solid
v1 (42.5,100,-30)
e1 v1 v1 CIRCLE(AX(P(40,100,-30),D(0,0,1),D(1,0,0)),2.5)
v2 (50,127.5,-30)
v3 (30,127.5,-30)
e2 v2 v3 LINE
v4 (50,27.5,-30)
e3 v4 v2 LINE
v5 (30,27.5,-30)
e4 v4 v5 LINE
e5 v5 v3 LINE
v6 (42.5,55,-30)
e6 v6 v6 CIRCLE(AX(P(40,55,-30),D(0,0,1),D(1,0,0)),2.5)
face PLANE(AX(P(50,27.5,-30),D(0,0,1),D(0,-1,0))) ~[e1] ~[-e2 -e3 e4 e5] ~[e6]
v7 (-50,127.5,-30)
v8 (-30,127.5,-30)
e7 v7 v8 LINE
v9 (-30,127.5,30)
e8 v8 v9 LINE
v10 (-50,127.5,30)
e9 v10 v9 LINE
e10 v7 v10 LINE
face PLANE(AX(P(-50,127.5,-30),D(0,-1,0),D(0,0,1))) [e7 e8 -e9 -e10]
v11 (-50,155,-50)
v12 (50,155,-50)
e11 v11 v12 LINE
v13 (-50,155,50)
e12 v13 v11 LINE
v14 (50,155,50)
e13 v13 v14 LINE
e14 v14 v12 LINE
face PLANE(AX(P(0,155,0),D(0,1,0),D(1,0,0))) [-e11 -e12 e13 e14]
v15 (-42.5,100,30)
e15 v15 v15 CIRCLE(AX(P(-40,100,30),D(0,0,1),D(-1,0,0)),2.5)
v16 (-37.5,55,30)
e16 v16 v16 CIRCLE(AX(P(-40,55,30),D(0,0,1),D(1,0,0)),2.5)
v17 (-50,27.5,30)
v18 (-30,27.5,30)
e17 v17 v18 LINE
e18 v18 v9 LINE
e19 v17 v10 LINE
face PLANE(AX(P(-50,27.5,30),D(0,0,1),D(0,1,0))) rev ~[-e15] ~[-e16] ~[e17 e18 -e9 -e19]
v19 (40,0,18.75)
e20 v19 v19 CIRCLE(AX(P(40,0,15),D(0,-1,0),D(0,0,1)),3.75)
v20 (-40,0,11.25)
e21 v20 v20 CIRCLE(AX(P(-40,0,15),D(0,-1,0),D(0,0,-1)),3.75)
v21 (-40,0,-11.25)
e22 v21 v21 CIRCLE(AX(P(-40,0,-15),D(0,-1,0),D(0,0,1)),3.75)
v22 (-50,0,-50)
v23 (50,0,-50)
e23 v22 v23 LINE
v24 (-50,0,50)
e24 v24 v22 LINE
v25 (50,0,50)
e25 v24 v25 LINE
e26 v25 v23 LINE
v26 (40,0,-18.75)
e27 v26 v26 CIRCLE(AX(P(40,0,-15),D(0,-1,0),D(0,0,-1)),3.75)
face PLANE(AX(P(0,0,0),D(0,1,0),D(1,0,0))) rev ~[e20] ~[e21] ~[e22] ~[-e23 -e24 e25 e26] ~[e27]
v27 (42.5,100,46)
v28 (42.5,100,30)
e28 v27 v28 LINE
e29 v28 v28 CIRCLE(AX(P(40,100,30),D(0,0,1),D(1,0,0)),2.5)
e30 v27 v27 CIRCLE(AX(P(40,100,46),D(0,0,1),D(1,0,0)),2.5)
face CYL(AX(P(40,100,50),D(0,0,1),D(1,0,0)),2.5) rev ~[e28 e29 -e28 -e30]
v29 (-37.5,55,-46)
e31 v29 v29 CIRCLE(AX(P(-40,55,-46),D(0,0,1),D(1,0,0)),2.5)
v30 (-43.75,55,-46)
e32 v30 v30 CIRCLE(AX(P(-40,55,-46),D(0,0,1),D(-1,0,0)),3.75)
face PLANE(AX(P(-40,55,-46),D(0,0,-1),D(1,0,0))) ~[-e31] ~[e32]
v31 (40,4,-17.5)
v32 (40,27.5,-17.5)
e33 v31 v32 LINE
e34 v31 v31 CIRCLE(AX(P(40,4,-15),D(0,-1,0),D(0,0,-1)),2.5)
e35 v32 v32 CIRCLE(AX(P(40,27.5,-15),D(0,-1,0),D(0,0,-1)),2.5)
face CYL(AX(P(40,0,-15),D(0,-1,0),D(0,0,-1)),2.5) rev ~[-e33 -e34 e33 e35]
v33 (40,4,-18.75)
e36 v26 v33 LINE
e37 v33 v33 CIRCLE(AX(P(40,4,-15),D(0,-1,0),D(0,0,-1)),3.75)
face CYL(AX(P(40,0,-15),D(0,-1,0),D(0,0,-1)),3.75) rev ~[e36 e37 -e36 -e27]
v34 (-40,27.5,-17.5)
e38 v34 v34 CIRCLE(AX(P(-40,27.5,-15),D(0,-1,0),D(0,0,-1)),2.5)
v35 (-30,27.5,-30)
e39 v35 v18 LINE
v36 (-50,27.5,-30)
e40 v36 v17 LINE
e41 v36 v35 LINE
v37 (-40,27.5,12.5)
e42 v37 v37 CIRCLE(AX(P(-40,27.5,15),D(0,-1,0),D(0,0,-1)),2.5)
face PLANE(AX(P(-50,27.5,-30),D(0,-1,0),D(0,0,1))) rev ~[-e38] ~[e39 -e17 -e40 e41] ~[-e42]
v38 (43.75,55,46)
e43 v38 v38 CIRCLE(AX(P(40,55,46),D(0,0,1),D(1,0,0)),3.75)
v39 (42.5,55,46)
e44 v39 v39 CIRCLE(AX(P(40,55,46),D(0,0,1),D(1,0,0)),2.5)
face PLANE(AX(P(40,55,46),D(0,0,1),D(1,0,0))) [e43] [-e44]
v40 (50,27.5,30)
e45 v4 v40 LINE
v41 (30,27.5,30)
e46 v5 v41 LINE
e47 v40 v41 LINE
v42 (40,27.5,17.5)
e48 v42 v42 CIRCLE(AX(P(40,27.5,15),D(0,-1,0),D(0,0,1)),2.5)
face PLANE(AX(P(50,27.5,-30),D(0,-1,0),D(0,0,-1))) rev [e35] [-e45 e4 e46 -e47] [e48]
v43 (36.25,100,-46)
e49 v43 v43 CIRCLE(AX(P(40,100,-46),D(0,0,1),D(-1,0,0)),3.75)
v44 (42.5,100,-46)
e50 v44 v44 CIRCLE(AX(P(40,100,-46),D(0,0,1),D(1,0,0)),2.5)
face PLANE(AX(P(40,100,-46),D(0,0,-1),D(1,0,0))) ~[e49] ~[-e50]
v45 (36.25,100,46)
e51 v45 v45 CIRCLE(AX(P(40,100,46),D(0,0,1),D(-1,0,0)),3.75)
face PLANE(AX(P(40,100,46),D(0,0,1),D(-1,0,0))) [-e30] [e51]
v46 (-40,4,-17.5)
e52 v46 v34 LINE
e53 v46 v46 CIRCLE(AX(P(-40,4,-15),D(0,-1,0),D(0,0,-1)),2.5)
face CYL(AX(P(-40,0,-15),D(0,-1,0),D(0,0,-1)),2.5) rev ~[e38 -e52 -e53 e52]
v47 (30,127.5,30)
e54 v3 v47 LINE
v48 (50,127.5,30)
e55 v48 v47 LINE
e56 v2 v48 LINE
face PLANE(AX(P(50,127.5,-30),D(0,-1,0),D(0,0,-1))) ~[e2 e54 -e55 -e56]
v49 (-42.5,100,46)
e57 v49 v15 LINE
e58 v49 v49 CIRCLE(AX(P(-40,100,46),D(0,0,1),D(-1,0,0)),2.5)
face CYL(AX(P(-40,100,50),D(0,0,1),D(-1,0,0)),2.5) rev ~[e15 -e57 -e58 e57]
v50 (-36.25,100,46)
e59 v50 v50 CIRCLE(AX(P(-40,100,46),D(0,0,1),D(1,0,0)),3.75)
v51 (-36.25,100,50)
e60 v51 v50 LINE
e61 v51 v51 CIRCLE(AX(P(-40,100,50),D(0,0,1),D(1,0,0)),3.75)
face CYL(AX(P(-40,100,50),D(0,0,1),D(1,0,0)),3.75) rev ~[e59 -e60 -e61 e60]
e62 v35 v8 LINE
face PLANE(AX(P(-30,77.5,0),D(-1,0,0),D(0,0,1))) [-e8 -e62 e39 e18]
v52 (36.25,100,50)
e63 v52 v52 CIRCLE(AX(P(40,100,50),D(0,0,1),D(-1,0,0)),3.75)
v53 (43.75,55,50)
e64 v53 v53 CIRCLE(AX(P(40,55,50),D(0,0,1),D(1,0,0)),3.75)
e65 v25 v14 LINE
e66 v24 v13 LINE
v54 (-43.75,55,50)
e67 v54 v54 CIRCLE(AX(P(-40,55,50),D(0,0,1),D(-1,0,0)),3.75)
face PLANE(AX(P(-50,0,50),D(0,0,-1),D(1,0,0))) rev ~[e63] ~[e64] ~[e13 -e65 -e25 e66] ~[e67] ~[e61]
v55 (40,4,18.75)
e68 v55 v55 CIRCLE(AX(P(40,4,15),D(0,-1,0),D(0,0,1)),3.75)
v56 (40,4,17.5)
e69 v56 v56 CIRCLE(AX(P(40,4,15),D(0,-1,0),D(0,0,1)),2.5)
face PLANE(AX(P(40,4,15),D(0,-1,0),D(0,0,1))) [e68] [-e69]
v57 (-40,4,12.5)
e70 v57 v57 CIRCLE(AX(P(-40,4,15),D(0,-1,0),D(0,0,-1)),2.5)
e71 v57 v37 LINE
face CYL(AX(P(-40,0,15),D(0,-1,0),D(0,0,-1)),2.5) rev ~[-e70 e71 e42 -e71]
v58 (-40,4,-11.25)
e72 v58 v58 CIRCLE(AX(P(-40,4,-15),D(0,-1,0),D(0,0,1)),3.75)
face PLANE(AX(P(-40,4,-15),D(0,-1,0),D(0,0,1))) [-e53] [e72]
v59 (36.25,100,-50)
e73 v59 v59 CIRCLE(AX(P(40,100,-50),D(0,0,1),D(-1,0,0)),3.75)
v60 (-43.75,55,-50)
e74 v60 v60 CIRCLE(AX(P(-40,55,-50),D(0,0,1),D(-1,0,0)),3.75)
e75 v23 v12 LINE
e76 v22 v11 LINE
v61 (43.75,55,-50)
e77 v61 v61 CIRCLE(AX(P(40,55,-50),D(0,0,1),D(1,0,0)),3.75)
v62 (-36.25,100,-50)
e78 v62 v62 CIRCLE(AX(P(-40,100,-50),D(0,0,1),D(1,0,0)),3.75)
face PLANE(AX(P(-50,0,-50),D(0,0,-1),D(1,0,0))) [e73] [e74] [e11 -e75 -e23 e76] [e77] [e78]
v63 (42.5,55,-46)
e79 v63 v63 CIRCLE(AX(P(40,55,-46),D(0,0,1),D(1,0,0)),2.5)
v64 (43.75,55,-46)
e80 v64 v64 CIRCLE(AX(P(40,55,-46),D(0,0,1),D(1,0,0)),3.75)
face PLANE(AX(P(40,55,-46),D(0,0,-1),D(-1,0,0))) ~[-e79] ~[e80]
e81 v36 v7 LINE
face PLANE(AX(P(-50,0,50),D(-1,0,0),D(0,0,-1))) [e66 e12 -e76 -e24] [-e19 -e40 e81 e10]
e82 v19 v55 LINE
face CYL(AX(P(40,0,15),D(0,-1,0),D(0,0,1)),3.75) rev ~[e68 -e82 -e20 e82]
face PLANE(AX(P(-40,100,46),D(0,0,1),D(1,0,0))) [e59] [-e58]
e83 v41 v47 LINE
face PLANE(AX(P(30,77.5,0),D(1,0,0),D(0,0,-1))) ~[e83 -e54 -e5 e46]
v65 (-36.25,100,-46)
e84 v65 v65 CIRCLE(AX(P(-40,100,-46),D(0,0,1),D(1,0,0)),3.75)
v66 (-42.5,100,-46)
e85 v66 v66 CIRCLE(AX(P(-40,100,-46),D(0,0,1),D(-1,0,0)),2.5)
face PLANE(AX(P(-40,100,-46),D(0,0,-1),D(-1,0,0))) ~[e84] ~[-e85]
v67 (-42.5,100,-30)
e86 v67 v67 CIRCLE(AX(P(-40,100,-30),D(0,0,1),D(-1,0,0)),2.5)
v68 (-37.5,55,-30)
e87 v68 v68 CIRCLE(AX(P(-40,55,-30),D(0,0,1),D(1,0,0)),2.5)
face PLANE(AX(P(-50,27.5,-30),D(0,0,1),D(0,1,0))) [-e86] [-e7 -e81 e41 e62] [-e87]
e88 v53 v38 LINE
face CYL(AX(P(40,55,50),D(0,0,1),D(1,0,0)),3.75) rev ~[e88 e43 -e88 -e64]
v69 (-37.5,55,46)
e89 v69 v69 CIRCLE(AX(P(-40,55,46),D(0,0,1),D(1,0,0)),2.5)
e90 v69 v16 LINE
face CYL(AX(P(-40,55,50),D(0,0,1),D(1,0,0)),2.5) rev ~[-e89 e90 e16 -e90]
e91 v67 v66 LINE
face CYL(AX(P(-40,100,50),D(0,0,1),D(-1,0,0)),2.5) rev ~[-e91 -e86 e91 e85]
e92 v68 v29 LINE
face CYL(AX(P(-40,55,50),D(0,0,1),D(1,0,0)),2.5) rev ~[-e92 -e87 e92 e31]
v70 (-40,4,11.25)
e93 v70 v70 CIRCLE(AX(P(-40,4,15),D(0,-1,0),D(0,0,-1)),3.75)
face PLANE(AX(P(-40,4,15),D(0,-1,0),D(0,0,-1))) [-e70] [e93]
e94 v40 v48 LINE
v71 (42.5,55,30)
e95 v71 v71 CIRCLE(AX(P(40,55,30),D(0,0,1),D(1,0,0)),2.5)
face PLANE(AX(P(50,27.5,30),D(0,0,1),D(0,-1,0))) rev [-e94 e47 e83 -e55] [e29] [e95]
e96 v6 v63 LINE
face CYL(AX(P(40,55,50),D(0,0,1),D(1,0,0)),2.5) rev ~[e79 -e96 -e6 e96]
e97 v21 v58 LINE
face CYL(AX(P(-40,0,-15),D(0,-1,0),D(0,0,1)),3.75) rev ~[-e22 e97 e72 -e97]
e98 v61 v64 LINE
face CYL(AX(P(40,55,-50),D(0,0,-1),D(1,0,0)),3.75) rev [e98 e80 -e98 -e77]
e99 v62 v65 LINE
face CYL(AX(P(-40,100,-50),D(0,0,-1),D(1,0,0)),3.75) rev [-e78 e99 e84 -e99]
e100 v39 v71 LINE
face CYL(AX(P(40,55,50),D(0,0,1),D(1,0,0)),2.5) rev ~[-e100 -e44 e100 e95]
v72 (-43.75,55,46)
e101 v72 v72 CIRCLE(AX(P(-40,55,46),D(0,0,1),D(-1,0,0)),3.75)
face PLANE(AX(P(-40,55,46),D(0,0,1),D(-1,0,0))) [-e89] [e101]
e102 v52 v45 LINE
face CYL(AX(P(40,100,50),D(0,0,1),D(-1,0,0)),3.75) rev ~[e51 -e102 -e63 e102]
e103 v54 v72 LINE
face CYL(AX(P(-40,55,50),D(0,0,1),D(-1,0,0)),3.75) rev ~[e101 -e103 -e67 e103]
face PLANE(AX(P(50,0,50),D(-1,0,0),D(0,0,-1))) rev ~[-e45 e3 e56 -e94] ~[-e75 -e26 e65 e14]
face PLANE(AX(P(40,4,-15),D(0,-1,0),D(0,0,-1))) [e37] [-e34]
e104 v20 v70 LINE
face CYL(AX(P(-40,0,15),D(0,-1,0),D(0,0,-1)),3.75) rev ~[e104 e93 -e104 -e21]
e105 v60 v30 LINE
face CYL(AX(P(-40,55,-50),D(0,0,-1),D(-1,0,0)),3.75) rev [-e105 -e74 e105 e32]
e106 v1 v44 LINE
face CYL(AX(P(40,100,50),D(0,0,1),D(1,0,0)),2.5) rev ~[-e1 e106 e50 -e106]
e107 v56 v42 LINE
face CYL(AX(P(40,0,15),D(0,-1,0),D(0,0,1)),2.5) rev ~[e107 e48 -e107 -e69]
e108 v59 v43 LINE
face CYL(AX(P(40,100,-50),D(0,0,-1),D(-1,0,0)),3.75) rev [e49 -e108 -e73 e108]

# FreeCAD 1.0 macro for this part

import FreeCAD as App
import Part
import Sketcher

V = App.Vector
Q = App.Units.Quantity


def add_polygon(sketch, points):
    """Adds a closed chain of lines whose ends are joined by coincident constraints."""
    first, n = sketch.GeometryCount, len(points)
    for a, b in zip(points, points[1:] + points[:1]):
        sketch.addGeometry(Part.LineSegment(App.Vector(*a, 0), App.Vector(*b, 0)), False)
    for i in range(n):
        sketch.addConstraint(Sketcher.Constraint("Coincident", first + i, 2, first + (i + 1) % n, 1))

doc = App.newDocument("Part")
body = doc.addObject("PartDesign::Body", "Body")

sketch1 = doc.addObject("Sketcher::SketchObject", "Sketch")
body.addObject(sketch1)
sketch1.AttachmentSupport = (doc.XZ_Plane, [""])
sketch1.MapMode = "FlatFace"
add_polygon(sketch1, [(-50, -50), (-50, 50), (50, 50), (50, -50)])
sketch1.addConstraint([
    Sketcher.Constraint("Vertical", 0),
    Sketcher.Constraint("Horizontal", 1),
    Sketcher.Constraint("Vertical", 2),
    Sketcher.Constraint("Horizontal", 3),
    Sketcher.Constraint("Symmetric", 0, 2, 2, 2, -1, 1),
    Sketcher.Constraint("Equal", 3, 0),
    Sketcher.Constraint("DistanceX", 1, 1, 1, 2, Q("100 mm")),
])
pad1 = doc.addObject("PartDesign::Pad", "Pad")
body.addObject(pad1)
pad1.Profile = sketch1
pad1.Length = 155
pad1.Reversed = True

sketch2 = doc.addObject("Sketcher::SketchObject", "Sketch001")
body.addObject(sketch2)
sketch2.AttachmentSupport = (doc.YZ_Plane, [""])
sketch2.MapMode = "FlatFace"
sketch2.AttachmentOffset = App.Placement(V(0, 0, -50), App.Rotation())
add_polygon(sketch2, [(127.5, -30), (27.5, -30), (27.5, 30), (127.5, 30)])
sketch2.addConstraint([
    Sketcher.Constraint("Horizontal", 0),
    Sketcher.Constraint("Vertical", 1),
    Sketcher.Constraint("Horizontal", 2),
    Sketcher.Constraint("Vertical", 3),
    Sketcher.Constraint("DistanceX", 0, 2, 0, 1, Q("100 mm")),
    Sketcher.Constraint("DistanceY", 1, 1, 1, 2, Q("60 mm")),
    Sketcher.Constraint("DistanceY", 0, 2, -1, 1, Q("30 mm")),
    Sketcher.Constraint("DistanceX", -1, 1, 0, 2, Q("27.5 mm")),
])
pocket1 = doc.addObject("PartDesign::Pocket", "Pocket")
body.addObject(pocket1)
pocket1.Profile = sketch2
pocket1.Length = 20
pocket1.Reversed = True
doc.recompute()

mirrored = doc.addObject("PartDesign::Mirrored", "Mirrored")
body.addObject(mirrored)
mirrored.Originals = [pocket1]
mirrored.MirrorPlane = (doc.YZ_Plane, [""])
body.Tip = mirrored

sketch3 = doc.addObject("Sketcher::SketchObject", "Sketch002")
body.addObject(sketch3)
sketch3.AttachmentSupport = (doc.XY_Plane, [""])
sketch3.MapMode = "FlatFace"
sketch3.AttachmentOffset = App.Placement(V(0, 0, 50), App.Rotation())
sketch3.addGeometry([
    Part.Circle(V(-40, 100, 0), V(0, 0, 1), 3.75),
    Part.Circle(V(-40, 55, 0), V(0, 0, 1), 3.75),
    Part.Circle(V(40, 55, 0), V(0, 0, 1), 3.75),
    Part.Circle(V(40, 100, 0), V(0, 0, 1), 3.75),
], False)
sketch3.addConstraint([
    Sketcher.Constraint("Equal", 0, 1),
    Sketcher.Constraint("Equal", 1, 2),
    Sketcher.Constraint("Equal", 2, 3),
    Sketcher.Constraint("Symmetric", 1, 3, 2, 3, -2),
    Sketcher.Constraint("Symmetric", 0, 3, 3, 3, -2),
    Sketcher.Constraint("Vertical", 0, 3, 1, 3),
    Sketcher.Constraint("Diameter", 0, Q("7.5 mm")),
    Sketcher.Constraint("DistanceX", 0, 3, -1, 1, Q("40 mm")),
    Sketcher.Constraint("DistanceY", -1, 1, 0, 3, Q("100 mm")),
    Sketcher.Constraint("DistanceY", -1, 1, 1, 3, Q("55 mm")),
])
pocket2 = doc.addObject("PartDesign::Pocket", "Pocket001")
body.addObject(pocket2)
pocket2.Profile = sketch3
pocket2.Length = 4
doc.recompute()

mirrored2 = doc.addObject("PartDesign::Mirrored", "Mirrored001")
body.addObject(mirrored2)
mirrored2.Originals = [pocket2]
mirrored2.MirrorPlane = (doc.XY_Plane, [""])
body.Tip = mirrored2

sketch4 = doc.addObject("Sketcher::SketchObject", "Sketch003")
body.addObject(sketch4)
sketch4.AttachmentSupport = (doc.XY_Plane, [""])
sketch4.MapMode = "FlatFace"
sketch4.AttachmentOffset = App.Placement(V(0, 0, 50), App.Rotation())
sketch4.addGeometry([
    Part.Circle(V(-40, 100, 0), V(0, 0, 1), 2.5),
    Part.Circle(V(40, 100, 0), V(0, 0, 1), 2.5),
    Part.Circle(V(40, 55, 0), V(0, 0, 1), 2.5),
    Part.Circle(V(-40, 55, 0), V(0, 0, 1), 2.5),
], False)
sketch4.addConstraint([
    Sketcher.Constraint("Equal", 0, 1),
    Sketcher.Constraint("Equal", 1, 2),
    Sketcher.Constraint("Equal", 2, 3),
    Sketcher.Constraint("Symmetric", 0, 3, 1, 3, -2),
    Sketcher.Constraint("Symmetric", 2, 3, 3, 3, -2),
    Sketcher.Constraint("Vertical", 1, 3, 2, 3),
    Sketcher.Constraint("Diameter", 0, Q("5 mm")),
    Sketcher.Constraint("DistanceX", 0, 3, -1, 1, Q("40 mm")),
    Sketcher.Constraint("DistanceY", -1, 1, 0, 3, Q("100 mm")),
    Sketcher.Constraint("DistanceY", -1, 1, 2, 3, Q("55 mm")),
])
pocket3 = doc.addObject("PartDesign::Pocket", "Pocket002")
body.addObject(pocket3)
pocket3.Profile = sketch4
pocket3.Type = "ThroughAll"

sketch5 = doc.addObject("Sketcher::SketchObject", "Sketch004")
body.addObject(sketch5)
sketch5.AttachmentSupport = (doc.XZ_Plane, [""])
sketch5.MapMode = "FlatFace"
sketch5.addGeometry([
    Part.Circle(V(-40, 15, 0), V(0, 0, 1), 3.75),
    Part.Circle(V(40, 15, 0), V(0, 0, 1), 3.75),
    Part.Circle(V(40, -15, 0), V(0, 0, 1), 3.75),
    Part.Circle(V(-40, -15, 0), V(0, 0, 1), 3.75),
], False)
sketch5.addConstraint([
    Sketcher.Constraint("Equal", 0, 1),
    Sketcher.Constraint("Equal", 1, 2),
    Sketcher.Constraint("Equal", 2, 3),
    Sketcher.Constraint("Symmetric", 0, 3, 2, 3, -1, 1),
    Sketcher.Constraint("Symmetric", 1, 3, 3, 3, -1, 1),
    Sketcher.Constraint("Symmetric", 0, 3, 1, 3, -2),
    Sketcher.Constraint("Diameter", 0, Q("7.5 mm")),
    Sketcher.Constraint("DistanceX", 0, 3, -1, 1, Q("40 mm")),
    Sketcher.Constraint("DistanceY", -1, 1, 0, 3, Q("15 mm")),
])
pocket4 = doc.addObject("PartDesign::Pocket", "Pocket003")
body.addObject(pocket4)
pocket4.Profile = sketch5
pocket4.Length = 4

sketch6 = doc.addObject("Sketcher::SketchObject", "Sketch005")
body.addObject(sketch6)
sketch6.AttachmentSupport = (doc.XZ_Plane, [""])
sketch6.MapMode = "FlatFace"
sketch6.addGeometry([
    Part.Circle(V(-40, 15, 0), V(0, 0, 1), 2.5),
    Part.Circle(V(40, 15, 0), V(0, 0, 1), 2.5),
    Part.Circle(V(40, -15, 0), V(0, 0, 1), 2.5),
    Part.Circle(V(-40, -15, 0), V(0, 0, 1), 2.5),
], False)
sketch6.addConstraint([
    Sketcher.Constraint("Equal", 0, 1),
    Sketcher.Constraint("Equal", 1, 2),
    Sketcher.Constraint("Equal", 2, 3),
    Sketcher.Constraint("Symmetric", 0, 3, 2, 3, -1, 1),
    Sketcher.Constraint("Symmetric", 1, 3, 3, 3, -1, 1),
    Sketcher.Constraint("Symmetric", 0, 3, 1, 3, -2),
    Sketcher.Constraint("Diameter", 0, Q("5 mm")),
    Sketcher.Constraint("DistanceX", 0, 3, -1, 1, Q("40 mm")),
    Sketcher.Constraint("DistanceY", -1, 1, 0, 3, Q("15 mm")),
])
pocket5 = doc.addObject("PartDesign::Pocket", "Pocket004")
body.addObject(pocket5)
pocket5.Profile = sketch6
pocket5.Length = 50

doc.recompute()
